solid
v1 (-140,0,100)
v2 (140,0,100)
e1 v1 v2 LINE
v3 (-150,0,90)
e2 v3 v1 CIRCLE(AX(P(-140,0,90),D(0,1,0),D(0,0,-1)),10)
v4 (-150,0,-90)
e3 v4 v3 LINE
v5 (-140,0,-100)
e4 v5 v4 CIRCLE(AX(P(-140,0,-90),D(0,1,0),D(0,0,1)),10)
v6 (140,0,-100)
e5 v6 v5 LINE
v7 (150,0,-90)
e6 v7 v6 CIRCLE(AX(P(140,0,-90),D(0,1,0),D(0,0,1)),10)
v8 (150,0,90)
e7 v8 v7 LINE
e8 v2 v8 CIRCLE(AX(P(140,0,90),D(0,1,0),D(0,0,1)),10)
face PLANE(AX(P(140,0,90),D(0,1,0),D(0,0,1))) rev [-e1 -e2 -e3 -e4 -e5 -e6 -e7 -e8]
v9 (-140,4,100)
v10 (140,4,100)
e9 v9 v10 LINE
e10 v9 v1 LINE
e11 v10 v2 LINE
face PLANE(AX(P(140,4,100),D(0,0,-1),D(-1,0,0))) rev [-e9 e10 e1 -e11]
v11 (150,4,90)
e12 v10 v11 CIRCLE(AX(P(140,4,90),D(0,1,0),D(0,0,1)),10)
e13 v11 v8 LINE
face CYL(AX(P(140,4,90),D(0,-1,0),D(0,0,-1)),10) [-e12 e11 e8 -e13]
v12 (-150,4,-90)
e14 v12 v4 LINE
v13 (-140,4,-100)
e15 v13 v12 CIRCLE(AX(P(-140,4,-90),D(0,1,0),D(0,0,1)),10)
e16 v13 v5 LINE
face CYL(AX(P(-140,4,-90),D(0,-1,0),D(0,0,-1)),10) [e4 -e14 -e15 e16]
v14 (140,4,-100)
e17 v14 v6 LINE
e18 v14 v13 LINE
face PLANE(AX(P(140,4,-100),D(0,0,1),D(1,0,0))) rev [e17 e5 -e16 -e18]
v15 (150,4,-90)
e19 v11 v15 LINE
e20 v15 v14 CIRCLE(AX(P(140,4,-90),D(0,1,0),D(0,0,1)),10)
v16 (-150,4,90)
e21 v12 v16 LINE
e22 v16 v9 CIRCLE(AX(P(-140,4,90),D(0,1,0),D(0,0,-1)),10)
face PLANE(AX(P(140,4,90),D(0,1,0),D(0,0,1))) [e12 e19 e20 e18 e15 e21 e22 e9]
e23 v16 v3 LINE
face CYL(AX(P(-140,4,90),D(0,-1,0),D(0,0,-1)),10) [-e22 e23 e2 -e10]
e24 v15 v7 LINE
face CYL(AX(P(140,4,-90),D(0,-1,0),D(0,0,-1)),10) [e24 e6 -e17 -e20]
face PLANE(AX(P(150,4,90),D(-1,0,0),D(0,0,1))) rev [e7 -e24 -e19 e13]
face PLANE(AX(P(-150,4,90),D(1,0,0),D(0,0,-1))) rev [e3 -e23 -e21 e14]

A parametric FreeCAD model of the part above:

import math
import FreeCAD as App
import Part
import Sketcher
from FreeCAD import Vector

doc = App.newDocument("Part")
body = doc.addObject("PartDesign::Body", "Body")

# Sketch on XZ plane
sketch1 = body.newObject("Sketcher::SketchObject", "Sketch")
sketch1.AttachmentSupport = (doc.getObject("XZ_Plane"), [""])
sketch1.MapMode = "FlatFace"
sketch1.addGeometry(Part.LineSegment(Vector(-140, 100, 0), Vector(140, 100, 0)), False)
sketch1.addGeometry(Part.ArcOfCircle(Part.Circle(Vector(140, 90, 0), Vector(0, 0, 1), 10), math.radians(0), math.radians(90)), False)
sketch1.addGeometry(Part.LineSegment(Vector(150, 90, 0), Vector(150, -90, 0)), False)
sketch1.addGeometry(Part.ArcOfCircle(Part.Circle(Vector(140, -90, 0), Vector(0, 0, 1), 10), math.radians(-90), math.radians(0)), False)
sketch1.addGeometry(Part.LineSegment(Vector(140, -100, 0), Vector(-140, -100, 0)), False)
sketch1.addGeometry(Part.ArcOfCircle(Part.Circle(Vector(-140, -90, 0), Vector(0, 0, 1), 10), math.radians(180), math.radians(270)), False)
sketch1.addGeometry(Part.LineSegment(Vector(-150, -90, 0), Vector(-150, 90, 0)), False)
sketch1.addGeometry(Part.ArcOfCircle(Part.Circle(Vector(-140, 90, 0), Vector(0, 0, 1), 10), math.radians(90), math.radians(180)), False)
sketch1.addConstraint(Sketcher.Constraint("Tangent", 0, 2, 1, 2))
sketch1.addConstraint(Sketcher.Constraint("Tangent", 1, 1, 2, 1))
sketch1.addConstraint(Sketcher.Constraint("Tangent", 2, 2, 3, 2))
sketch1.addConstraint(Sketcher.Constraint("Tangent", 3, 1, 4, 1))
sketch1.addConstraint(Sketcher.Constraint("Tangent", 4, 2, 5, 2))
sketch1.addConstraint(Sketcher.Constraint("Tangent", 5, 1, 6, 1))
sketch1.addConstraint(Sketcher.Constraint("Tangent", 6, 2, 7, 2))
sketch1.addConstraint(Sketcher.Constraint("Tangent", 7, 1, 0, 1))
sketch1.addConstraint(Sketcher.Constraint("Horizontal", 0))
sketch1.addConstraint(Sketcher.Constraint("Vertical", 2))
sketch1.addConstraint(Sketcher.Constraint("Horizontal", 4))
sketch1.addConstraint(Sketcher.Constraint("Vertical", 6))
sketch1.addConstraint(Sketcher.Constraint("Equal", 1, 3))
sketch1.addConstraint(Sketcher.Constraint("Equal", 3, 5))
sketch1.addConstraint(Sketcher.Constraint("Equal", 5, 7))
sketch1.addConstraint(Sketcher.Constraint("Symmetric", 1, 3, 5, 3, -1, 1))
sketch1.addConstraint(Sketcher.Constraint("Radius", 1, 10.0))
sketch1.addConstraint(Sketcher.Constraint("DistanceX", 0, 1, 0, 2, 280.0))
sketch1.addConstraint(Sketcher.Constraint("DistanceY", 2, 2, 2, 1, 180.0))
pad1 = body.newObject("PartDesign::Pad", "Pad")
pad1.Profile = sketch1
pad1.Length = 4
pad1.Reversed = True

doc.recompute()
